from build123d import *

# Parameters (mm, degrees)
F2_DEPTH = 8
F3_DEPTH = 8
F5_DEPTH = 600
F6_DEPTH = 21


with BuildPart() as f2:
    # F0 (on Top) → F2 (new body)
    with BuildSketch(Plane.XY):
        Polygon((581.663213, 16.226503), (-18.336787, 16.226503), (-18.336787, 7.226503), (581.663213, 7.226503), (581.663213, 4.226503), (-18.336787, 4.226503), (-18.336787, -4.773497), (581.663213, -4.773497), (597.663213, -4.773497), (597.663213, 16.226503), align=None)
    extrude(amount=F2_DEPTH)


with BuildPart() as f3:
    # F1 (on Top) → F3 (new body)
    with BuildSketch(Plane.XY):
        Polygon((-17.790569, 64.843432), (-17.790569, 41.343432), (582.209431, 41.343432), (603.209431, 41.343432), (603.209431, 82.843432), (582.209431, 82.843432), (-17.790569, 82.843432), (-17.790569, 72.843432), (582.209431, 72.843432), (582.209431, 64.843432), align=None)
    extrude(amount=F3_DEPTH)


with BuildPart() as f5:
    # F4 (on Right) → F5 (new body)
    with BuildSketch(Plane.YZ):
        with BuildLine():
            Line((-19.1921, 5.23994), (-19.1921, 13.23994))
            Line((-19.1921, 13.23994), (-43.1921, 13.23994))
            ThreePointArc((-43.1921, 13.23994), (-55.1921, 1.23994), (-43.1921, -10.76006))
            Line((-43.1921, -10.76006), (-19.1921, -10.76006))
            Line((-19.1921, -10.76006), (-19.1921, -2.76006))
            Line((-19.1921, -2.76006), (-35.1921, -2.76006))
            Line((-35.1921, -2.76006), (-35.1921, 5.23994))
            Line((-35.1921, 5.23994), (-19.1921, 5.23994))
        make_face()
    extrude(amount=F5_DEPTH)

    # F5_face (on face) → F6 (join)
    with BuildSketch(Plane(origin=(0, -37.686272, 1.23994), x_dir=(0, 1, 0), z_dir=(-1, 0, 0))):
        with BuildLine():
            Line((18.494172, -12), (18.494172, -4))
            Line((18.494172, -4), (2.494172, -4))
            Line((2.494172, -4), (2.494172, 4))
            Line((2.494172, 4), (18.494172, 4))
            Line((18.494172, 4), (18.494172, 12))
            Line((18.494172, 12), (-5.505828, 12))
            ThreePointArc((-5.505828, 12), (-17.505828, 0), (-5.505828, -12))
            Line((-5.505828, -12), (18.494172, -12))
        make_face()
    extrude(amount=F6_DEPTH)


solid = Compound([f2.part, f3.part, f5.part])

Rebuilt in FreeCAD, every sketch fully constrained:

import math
import FreeCAD as App
import Part
import Sketcher
from FreeCAD import Vector
Q = App.Units.Quantity


def add_polygon(sketch, points):
    """Adds a closed chain of lines whose ends are joined by coincident constraints."""
    first, n = sketch.GeometryCount, len(points)
    for a, b in zip(points, points[1:] + points[:1]):
        sketch.addGeometry(Part.LineSegment(App.Vector(*a, 0), App.Vector(*b, 0)), False)
    for i in range(n):
        sketch.addConstraint(Sketcher.Constraint("Coincident", first + i, 2, first + (i + 1) % n, 1))

doc = App.newDocument("Part")
body = doc.addObject("PartDesign::Body", "Body")

sketch1 = body.newObject("Sketcher::SketchObject", "Sketch")
sketch1.AttachmentSupport = (doc.getObject("XY_Plane"), [""])
sketch1.MapMode = "FlatFace"
add_polygon(sketch1, [(-18.336787, 16.226503), (-18.336787, 7.226503), (581.663213, 7.226503), (581.663213, 4.226503), (-18.336787, 4.226503), (-18.336787, -4.773497), (597.663213, -4.773497), (597.663213, 16.226503)])
sketch1.addConstraint([
    Sketcher.Constraint("Vertical", 0),
    Sketcher.Constraint("Horizontal", 1),
    Sketcher.Constraint("Vertical", 2),
    Sketcher.Constraint("Horizontal", 3),
    Sketcher.Constraint("Vertical", 4),
    Sketcher.Constraint("Horizontal", 5),
    Sketcher.Constraint("Vertical", 6),
    Sketcher.Constraint("Horizontal", 7),
    Sketcher.Constraint("Vertical", 0, 2, 3, 2),
    Sketcher.Constraint("Equal", 0, 4),
    Sketcher.Constraint("DistanceX", 1, 1, 1, 2, Q("600 mm")),
    Sketcher.Constraint("DistanceX", 5, 1, 5, 2, Q("616 mm")),
    Sketcher.Constraint("DistanceY", 0, 2, 0, 1, Q("9 mm")),
    Sketcher.Constraint("DistanceY", 2, 2, 2, 1, Q("3 mm")),
    Sketcher.Constraint("DistanceX", 0, 2, -1, 1, Q("18.336787 mm")),
    Sketcher.Constraint("DistanceY", -1, 1, 0, 2, Q("7.226503 mm")),
])
pad1 = body.newObject("PartDesign::Pad", "Pad")
pad1.Profile = sketch1
pad1.Length = 8
body2 = doc.addObject("PartDesign::Body", "Body001")

sketch2 = body2.newObject("Sketcher::SketchObject", "Sketch001")
sketch2.AttachmentSupport = (doc.getObject("XY_Plane001"), [""])
sketch2.MapMode = "FlatFace"
add_polygon(sketch2, [(-17.790569, 64.843432), (-17.790569, 41.343432), (603.209431, 41.343432), (603.209431, 82.843432), (-17.790569, 82.843432), (-17.790569, 72.843432), (582.209431, 72.843432), (582.209431, 64.843432)])
sketch2.addConstraint([
    Sketcher.Constraint("Vertical", 0),
    Sketcher.Constraint("Horizontal", 1),
    Sketcher.Constraint("Vertical", 2),
    Sketcher.Constraint("Horizontal", 3),
    Sketcher.Constraint("Vertical", 4),
    Sketcher.Constraint("Horizontal", 5),
    Sketcher.Constraint("Vertical", 6),
    Sketcher.Constraint("Horizontal", 7),
    Sketcher.Constraint("Vertical", 0, 2, 3, 2),
    Sketcher.Constraint("DistanceX", 1, 1, 1, 2, Q("621 mm")),
    Sketcher.Constraint("DistanceX", 5, 1, 5, 2, Q("600 mm")),
    Sketcher.Constraint("DistanceY", 4, 2, 4, 1, Q("10 mm")),
    Sketcher.Constraint("DistanceY", 6, 2, 6, 1, Q("8 mm")),
    Sketcher.Constraint("DistanceY", 0, 2, 0, 1, Q("23.5 mm")),
    Sketcher.Constraint("DistanceX", 0, 2, -1, 1, Q("17.790569 mm")),
    Sketcher.Constraint("DistanceY", -1, 1, 0, 2, Q("41.343432 mm")),
])
pad2 = body2.newObject("PartDesign::Pad", "Pad001")
pad2.Profile = sketch2
pad2.Length = 8
body3 = doc.addObject("PartDesign::Body", "Body002")

sketch3 = body3.newObject("Sketcher::SketchObject", "Sketch002")
sketch3.AttachmentSupport = (doc.getObject("YZ_Plane002"), [""])
sketch3.MapMode = "FlatFace"
sketch3.addGeometry([
    Part.LineSegment(Vector(-19.1921, 5.23994, 0), Vector(-19.1921, 13.23994, 0)),
    Part.LineSegment(Vector(-19.1921, 13.23994, 0), Vector(-43.1921, 13.23994, 0)),
    Part.ArcOfCircle(Part.Circle(Vector(-43.1921, 1.23994, 0), Vector(0, 0, 1), 12), math.radians(90), math.radians(270)),
    Part.LineSegment(Vector(-43.1921, -10.76006, 0), Vector(-19.1921, -10.76006, 0)),
    Part.LineSegment(Vector(-19.1921, -10.76006, 0), Vector(-19.1921, -2.76006, 0)),
    Part.LineSegment(Vector(-19.1921, -2.76006, 0), Vector(-35.1921, -2.76006, 0)),
    Part.LineSegment(Vector(-35.1921, -2.76006, 0), Vector(-35.1921, 5.23994, 0)),
    Part.LineSegment(Vector(-35.1921, 5.23994, 0), Vector(-19.1921, 5.23994, 0)),
], False)
sketch3.addConstraint([
    Sketcher.Constraint("Coincident", 0, 2, 1, 1),
    Sketcher.Constraint("Tangent", 1, 2, 2, 1),
    Sketcher.Constraint("Tangent", 2, 2, 3, 1),
    Sketcher.Constraint("Coincident", 3, 2, 4, 1),
    Sketcher.Constraint("Coincident", 4, 2, 5, 1),
    Sketcher.Constraint("Coincident", 5, 2, 6, 1),
    Sketcher.Constraint("Coincident", 6, 2, 7, 1),
    Sketcher.Constraint("Coincident", 7, 2, 0, 1),
    Sketcher.Constraint("Vertical", 0),
    Sketcher.Constraint("Horizontal", 1),
    Sketcher.Constraint("Horizontal", 3),
    Sketcher.Constraint("Vertical", 4),
    Sketcher.Constraint("Horizontal", 5),
    Sketcher.Constraint("Vertical", 6),
    Sketcher.Constraint("Horizontal", 7),
    Sketcher.Constraint("Vertical", 0, 2, 3, 2),
    Sketcher.Constraint("Equal", 0, 4),
    Sketcher.Constraint("Equal", 4, 6),
    Sketcher.Constraint("Radius", 2, Q("12 mm")),
    Sketcher.Constraint("DistanceX", 1, 2, 1, 1, Q("24 mm")),
    Sketcher.Constraint("DistanceX", 5, 2, 5, 1, Q("16 mm")),
    Sketcher.Constraint("DistanceX", 2, 3, -1, 1, Q("43.1921 mm")),
    Sketcher.Constraint("DistanceY", -1, 1, 2, 3, Q("1.23994 mm")),
])
pad3 = body3.newObject("PartDesign::Pad", "Pad002")
pad3.Profile = sketch3
pad3.Length = 600

sketch4 = body3.newObject("Sketcher::SketchObject", "Sketch003")
sketch4.AttachmentSupport = (doc.getObject("YZ_Plane002"), [""])
sketch4.MapMode = "FlatFace"
sketch4.addGeometry([
    Part.LineSegment(Vector(-19.1921, 13.23994, 0), Vector(-19.1921, 5.23994, 0)),
    Part.LineSegment(Vector(-19.1921, 5.23994, 0), Vector(-35.1921, 5.23994, 0)),
    Part.LineSegment(Vector(-35.1921, 5.23994, 0), Vector(-35.1921, -2.76006, 0)),
    Part.LineSegment(Vector(-35.1921, -2.76006, 0), Vector(-19.1921, -2.76006, 0)),
    Part.LineSegment(Vector(-19.1921, -2.76006, 0), Vector(-19.1921, -10.76006, 0)),
    Part.LineSegment(Vector(-19.1921, -10.76006, 0), Vector(-43.1921, -10.76006, 0)),
    Part.ArcOfCircle(Part.Circle(Vector(-43.1921, 1.23994, 0), Vector(0, 0, 1), 12), math.radians(90), math.radians(270)),
    Part.LineSegment(Vector(-43.1921, 13.23994, 0), Vector(-19.1921, 13.23994, 0)),
], False)
sketch4.addConstraint([
    Sketcher.Constraint("Coincident", 0, 2, 1, 1),
    Sketcher.Constraint("Coincident", 1, 2, 2, 1),
    Sketcher.Constraint("Coincident", 2, 2, 3, 1),
    Sketcher.Constraint("Coincident", 3, 2, 4, 1),
    Sketcher.Constraint("Coincident", 4, 2, 5, 1),
    Sketcher.Constraint("Tangent", 5, 2, 6, 2),
    Sketcher.Constraint("Tangent", 6, 1, 7, 1),
    Sketcher.Constraint("Coincident", 7, 2, 0, 1),
    Sketcher.Constraint("Vertical", 0),
    Sketcher.Constraint("Horizontal", 1),
    Sketcher.Constraint("Vertical", 2),
    Sketcher.Constraint("Horizontal", 3),
    Sketcher.Constraint("Vertical", 4),
    Sketcher.Constraint("Horizontal", 5),
    Sketcher.Constraint("Horizontal", 7),
    Sketcher.Constraint("Vertical", 0, 2, 3, 2),
    Sketcher.Constraint("Equal", 0, 2),
    Sketcher.Constraint("Equal", 2, 4),
    Sketcher.Constraint("Radius", 6, Q("12 mm")),
    Sketcher.Constraint("DistanceX", 1, 2, 1, 1, Q("16 mm")),
    Sketcher.Constraint("DistanceX", 5, 2, 5, 1, Q("24 mm")),
    Sketcher.Constraint("DistanceX", 6, 3, -1, 1, Q("43.1921 mm")),
    Sketcher.Constraint("DistanceY", -1, 1, 6, 3, Q("1.23994 mm")),
])
pad4 = body3.newObject("PartDesign::Pad", "Pad003")
pad4.Profile = sketch4
pad4.Length = 21
pad4.Reversed = True

doc.recompute()
